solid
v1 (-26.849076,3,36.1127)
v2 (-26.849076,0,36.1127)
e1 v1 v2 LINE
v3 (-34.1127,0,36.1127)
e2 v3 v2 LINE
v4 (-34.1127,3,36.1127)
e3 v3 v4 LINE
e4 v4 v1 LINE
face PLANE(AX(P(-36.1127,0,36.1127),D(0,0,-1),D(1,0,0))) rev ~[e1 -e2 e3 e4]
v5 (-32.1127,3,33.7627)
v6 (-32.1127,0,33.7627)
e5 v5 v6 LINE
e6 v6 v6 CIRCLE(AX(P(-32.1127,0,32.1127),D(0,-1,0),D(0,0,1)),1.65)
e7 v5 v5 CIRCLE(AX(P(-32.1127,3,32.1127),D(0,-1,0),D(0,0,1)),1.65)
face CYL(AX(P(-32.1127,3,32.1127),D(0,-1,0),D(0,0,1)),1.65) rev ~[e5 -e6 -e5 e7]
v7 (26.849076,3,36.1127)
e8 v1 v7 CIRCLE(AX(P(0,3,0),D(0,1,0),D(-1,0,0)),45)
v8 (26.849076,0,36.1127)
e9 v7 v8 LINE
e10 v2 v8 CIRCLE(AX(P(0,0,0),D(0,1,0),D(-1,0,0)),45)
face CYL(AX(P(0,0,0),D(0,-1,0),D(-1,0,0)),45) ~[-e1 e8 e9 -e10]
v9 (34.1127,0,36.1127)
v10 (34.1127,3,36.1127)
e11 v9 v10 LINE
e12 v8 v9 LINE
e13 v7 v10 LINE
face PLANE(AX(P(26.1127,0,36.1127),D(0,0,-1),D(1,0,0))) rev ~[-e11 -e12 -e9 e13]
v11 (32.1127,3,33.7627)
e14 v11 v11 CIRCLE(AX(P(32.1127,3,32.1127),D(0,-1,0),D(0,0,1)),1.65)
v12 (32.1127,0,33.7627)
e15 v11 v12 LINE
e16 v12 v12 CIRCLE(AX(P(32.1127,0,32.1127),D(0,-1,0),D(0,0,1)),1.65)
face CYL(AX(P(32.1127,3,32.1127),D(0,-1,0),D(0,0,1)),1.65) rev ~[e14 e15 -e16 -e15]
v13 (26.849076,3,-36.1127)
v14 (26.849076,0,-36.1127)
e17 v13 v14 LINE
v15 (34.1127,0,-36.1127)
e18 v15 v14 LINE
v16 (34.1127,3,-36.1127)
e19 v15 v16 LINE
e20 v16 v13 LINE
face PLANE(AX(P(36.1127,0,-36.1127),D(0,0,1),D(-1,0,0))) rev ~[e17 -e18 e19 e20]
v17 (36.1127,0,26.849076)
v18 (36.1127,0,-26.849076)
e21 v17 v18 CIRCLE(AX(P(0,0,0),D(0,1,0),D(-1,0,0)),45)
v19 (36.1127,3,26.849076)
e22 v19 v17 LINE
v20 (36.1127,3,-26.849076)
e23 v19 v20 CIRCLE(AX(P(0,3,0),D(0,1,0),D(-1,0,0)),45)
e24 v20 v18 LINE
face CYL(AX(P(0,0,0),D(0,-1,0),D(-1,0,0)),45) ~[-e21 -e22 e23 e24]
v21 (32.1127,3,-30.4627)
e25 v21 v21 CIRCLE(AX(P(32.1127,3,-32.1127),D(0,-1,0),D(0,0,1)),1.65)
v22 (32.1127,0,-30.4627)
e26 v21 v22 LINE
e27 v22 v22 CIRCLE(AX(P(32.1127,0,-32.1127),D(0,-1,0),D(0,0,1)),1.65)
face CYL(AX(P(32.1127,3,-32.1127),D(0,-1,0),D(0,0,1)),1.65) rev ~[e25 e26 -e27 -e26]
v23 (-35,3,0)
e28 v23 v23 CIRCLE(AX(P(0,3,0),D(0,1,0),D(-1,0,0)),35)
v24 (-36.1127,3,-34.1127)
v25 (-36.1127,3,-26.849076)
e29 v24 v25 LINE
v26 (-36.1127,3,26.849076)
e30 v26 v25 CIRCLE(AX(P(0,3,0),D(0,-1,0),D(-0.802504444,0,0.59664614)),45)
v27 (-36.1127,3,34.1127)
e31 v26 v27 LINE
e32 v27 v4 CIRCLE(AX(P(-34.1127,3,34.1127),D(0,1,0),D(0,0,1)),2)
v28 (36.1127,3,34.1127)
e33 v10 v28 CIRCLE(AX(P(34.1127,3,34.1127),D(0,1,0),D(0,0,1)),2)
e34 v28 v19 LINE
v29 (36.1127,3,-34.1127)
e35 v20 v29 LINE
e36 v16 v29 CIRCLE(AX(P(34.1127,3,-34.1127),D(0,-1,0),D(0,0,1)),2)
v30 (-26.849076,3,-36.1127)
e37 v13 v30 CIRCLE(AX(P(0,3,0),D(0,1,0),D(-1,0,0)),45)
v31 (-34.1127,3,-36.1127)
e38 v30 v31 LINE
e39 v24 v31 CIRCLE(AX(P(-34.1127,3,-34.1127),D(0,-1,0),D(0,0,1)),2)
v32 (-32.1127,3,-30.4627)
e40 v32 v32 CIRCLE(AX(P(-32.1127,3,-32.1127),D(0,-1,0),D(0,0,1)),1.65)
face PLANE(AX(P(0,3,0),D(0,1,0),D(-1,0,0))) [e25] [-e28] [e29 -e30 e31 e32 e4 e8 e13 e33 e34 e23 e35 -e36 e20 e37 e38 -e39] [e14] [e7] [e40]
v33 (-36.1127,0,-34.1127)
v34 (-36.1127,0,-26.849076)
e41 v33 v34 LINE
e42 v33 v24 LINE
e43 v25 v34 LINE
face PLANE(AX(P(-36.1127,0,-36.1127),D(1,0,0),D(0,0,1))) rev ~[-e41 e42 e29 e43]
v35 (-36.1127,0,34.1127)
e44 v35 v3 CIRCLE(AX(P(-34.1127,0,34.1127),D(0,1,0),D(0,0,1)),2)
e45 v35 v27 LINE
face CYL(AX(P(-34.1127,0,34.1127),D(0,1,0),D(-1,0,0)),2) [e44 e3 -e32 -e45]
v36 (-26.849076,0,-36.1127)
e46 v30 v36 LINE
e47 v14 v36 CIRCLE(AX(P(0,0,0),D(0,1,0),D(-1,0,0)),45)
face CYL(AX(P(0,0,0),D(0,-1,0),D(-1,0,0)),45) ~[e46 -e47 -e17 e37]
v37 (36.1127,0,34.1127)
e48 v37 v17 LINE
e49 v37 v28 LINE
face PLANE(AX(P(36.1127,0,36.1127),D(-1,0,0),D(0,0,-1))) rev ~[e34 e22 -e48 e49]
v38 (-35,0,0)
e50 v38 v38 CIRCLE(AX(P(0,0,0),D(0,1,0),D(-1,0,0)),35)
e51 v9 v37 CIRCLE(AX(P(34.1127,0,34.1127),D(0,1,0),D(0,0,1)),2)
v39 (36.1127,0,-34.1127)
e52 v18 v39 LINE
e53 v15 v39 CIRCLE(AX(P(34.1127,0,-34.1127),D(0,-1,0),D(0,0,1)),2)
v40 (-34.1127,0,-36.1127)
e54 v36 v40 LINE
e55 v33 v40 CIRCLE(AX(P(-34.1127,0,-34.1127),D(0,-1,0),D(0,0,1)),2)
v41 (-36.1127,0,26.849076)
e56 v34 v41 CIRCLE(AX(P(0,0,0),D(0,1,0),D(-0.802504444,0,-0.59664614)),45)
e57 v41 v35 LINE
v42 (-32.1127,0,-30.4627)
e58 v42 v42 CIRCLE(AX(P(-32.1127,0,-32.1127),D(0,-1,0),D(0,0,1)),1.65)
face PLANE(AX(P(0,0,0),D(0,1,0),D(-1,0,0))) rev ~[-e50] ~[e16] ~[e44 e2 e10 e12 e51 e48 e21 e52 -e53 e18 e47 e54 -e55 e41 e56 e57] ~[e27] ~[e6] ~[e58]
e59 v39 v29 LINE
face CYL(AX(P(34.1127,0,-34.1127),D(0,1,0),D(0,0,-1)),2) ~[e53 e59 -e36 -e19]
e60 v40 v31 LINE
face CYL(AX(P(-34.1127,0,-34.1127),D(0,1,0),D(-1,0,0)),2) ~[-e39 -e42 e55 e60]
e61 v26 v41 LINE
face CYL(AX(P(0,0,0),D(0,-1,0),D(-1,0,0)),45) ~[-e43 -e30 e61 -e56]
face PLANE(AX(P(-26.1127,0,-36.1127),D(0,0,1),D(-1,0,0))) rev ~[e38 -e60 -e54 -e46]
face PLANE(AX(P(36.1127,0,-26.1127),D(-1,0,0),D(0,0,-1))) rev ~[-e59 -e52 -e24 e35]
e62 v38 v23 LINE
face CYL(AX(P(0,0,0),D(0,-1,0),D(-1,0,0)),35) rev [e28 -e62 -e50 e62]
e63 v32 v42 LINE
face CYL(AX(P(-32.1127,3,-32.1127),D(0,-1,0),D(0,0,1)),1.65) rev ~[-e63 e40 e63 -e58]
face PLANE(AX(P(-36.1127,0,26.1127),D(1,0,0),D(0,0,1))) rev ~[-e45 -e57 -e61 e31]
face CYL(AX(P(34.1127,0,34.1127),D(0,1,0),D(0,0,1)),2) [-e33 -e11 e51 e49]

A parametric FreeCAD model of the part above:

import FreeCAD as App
import Part
import Sketcher
from FreeCAD import Vector
Q = App.Units.Quantity


def edges_at(feature, points):
    """Names of the edges that pass closest to the given points."""
    edges = feature.Shape.Edges
    near = lambda p: min(range(len(edges)), key=lambda i: edges[i].distToShape(Part.Vertex(*p))[0])
    return sorted({f"Edge{near(p) + 1}" for p in points})


def add_polygon(sketch, points):
    """Adds a closed chain of lines whose ends are joined by coincident constraints."""
    first, n = sketch.GeometryCount, len(points)
    for a, b in zip(points, points[1:] + points[:1]):
        sketch.addGeometry(Part.LineSegment(App.Vector(*a, 0), App.Vector(*b, 0)), False)
    for i in range(n):
        sketch.addConstraint(Sketcher.Constraint("Coincident", first + i, 2, first + (i + 1) % n, 1))

doc = App.newDocument("Part")
body = doc.addObject("PartDesign::Body", "Body")

sketch1 = doc.addObject("Sketcher::SketchObject", "Sketch")
body.addObject(sketch1)
sketch1.AttachmentSupport = (doc.XZ_Plane, [""])
sketch1.MapMode = "FlatFace"
sketch1.addGeometry([
    Part.Circle(Vector(0, 0, 0), Vector(0, 0, 1), 45),
    Part.Circle(Vector(0, 0, 0), Vector(0, 0, 1), 35),
], False)
sketch1.addConstraint([
    Sketcher.Constraint("Coincident", 0, 3, -1, 1),
    Sketcher.Constraint("Coincident", 1, 3, -1, 1),
    Sketcher.Constraint("Diameter", 0, Q("90 mm")),
    Sketcher.Constraint("Diameter", 1, Q("70 mm")),
])
pad1 = doc.addObject("PartDesign::Pad", "Pad")
body.addObject(pad1)
pad1.Profile = sketch1
pad1.Length = 3
pad1.Reversed = True

sketch2 = doc.addObject("Sketcher::SketchObject", "Sketch001")
body.addObject(sketch2)
sketch2.AttachmentSupport = (doc.XZ_Plane, [""])
sketch2.MapMode = "FlatFace"
add_polygon(sketch2, [(-36, 26), (-26, 26), (-26, 36), (-36, 36)])
add_polygon(sketch2, [(-26, -36), (-26, -26), (-36, -26), (-36, -36)])
add_polygon(sketch2, [(36, -26), (26, -26), (26, -36), (36, -36)])
add_polygon(sketch2, [(26, 36), (26, 26), (36, 26), (36, 36)])
sketch2.addConstraint([
    Sketcher.Constraint("Horizontal", 0),
    Sketcher.Constraint("Vertical", 1),
    Sketcher.Constraint("Horizontal", 2),
    Sketcher.Constraint("Vertical", 3),
    Sketcher.Constraint("Vertical", 4),
    Sketcher.Constraint("Horizontal", 5),
    Sketcher.Constraint("Vertical", 6),
    Sketcher.Constraint("Horizontal", 7),
    Sketcher.Constraint("Horizontal", 8),
    Sketcher.Constraint("Vertical", 9),
    Sketcher.Constraint("Horizontal", 10),
    Sketcher.Constraint("Vertical", 11),
    Sketcher.Constraint("Vertical", 12),
    Sketcher.Constraint("Horizontal", 13),
    Sketcher.Constraint("Vertical", 14),
    Sketcher.Constraint("Horizontal", 15),
    Sketcher.Constraint("Symmetric", 0, 2, 8, 2, -1, 1),
    Sketcher.Constraint("Symmetric", 2, 2, 10, 2, -1, 1),
    Sketcher.Constraint("Symmetric", 4, 2, 12, 2, -1, 1),
    Sketcher.Constraint("Symmetric", 6, 2, 14, 2, -1, 1),
    Sketcher.Constraint("Symmetric", 4, 2, 8, 2, -2),
    Sketcher.Constraint("Symmetric", 6, 2, 10, 2, -2),
    Sketcher.Constraint("Equal", 15, 1),
    Sketcher.Constraint("DistanceX", 0, 1, 0, 2, Q("10 mm")),
    Sketcher.Constraint("DistanceX", 0, 2, -1, 1, Q("26.1127 mm")),
    Sketcher.Constraint("DistanceY", -1, 1, 0, 2, Q("26.1127 mm")),
])
pad2 = doc.addObject("PartDesign::Pad", "Pad001")
body.addObject(pad2)
pad2.Profile = sketch2
pad2.Length = 3
pad2.Reversed = True

sketch3 = doc.addObject("Sketcher::SketchObject", "Sketch002")
body.addObject(sketch3)
sketch3.AttachmentSupport = (doc.XZ_Plane, [""])
sketch3.MapMode = "FlatFace"
sketch3.AttachmentOffset = App.Placement(Vector(0, 0, -3), App.Rotation())
sketch3.addGeometry([
    Part.Circle(Vector(-32.1, 32.1, 0), Vector(0, 0, 1), 1.6),
    Part.Circle(Vector(32.1, 32.1, 0), Vector(0, 0, 1), 1.6),
    Part.Circle(Vector(32.1, -32.1, 0), Vector(0, 0, 1), 1.6),
    Part.Circle(Vector(-32.1, -32.1, 0), Vector(0, 0, 1), 1.6),
], False)
sketch3.addConstraint([
    Sketcher.Constraint("Equal", 0, 1),
    Sketcher.Constraint("Equal", 1, 2),
    Sketcher.Constraint("Equal", 2, 3),
    Sketcher.Constraint("Symmetric", 0, 3, 2, 3, -1, 1),
    Sketcher.Constraint("Symmetric", 1, 3, 3, 3, -1, 1),
    Sketcher.Constraint("Symmetric", 0, 3, 1, 3, -2),
    Sketcher.Constraint("Diameter", 0, Q("3.3 mm")),
    Sketcher.Constraint("DistanceX", 0, 3, -1, 1, Q("32.1127 mm")),
    Sketcher.Constraint("DistanceY", -1, 1, 0, 3, Q("32.1127 mm")),
])
doc.recompute()
hole = doc.addObject("PartDesign::Hole", "Hole")
body.addObject(hole)
hole.Profile = sketch3
hole.ThreadType = "None"
hole.Diameter = 3.3
hole.DepthType = "ThroughAll"
hole.Reversed = True
doc.recompute()

fillet = doc.addObject("PartDesign::Fillet", "Fillet")
body.addObject(fillet)
fillet.Base = (hole, edges_at(hole, [
    (-36.113, 1.5, 36.113),
    (-36.113, 1.5, -36.113),
    (36.113, 1.5, 36.113),
    (36.113, 1.5, -36.113),
]))
fillet.Radius = 2

doc.recompute()
